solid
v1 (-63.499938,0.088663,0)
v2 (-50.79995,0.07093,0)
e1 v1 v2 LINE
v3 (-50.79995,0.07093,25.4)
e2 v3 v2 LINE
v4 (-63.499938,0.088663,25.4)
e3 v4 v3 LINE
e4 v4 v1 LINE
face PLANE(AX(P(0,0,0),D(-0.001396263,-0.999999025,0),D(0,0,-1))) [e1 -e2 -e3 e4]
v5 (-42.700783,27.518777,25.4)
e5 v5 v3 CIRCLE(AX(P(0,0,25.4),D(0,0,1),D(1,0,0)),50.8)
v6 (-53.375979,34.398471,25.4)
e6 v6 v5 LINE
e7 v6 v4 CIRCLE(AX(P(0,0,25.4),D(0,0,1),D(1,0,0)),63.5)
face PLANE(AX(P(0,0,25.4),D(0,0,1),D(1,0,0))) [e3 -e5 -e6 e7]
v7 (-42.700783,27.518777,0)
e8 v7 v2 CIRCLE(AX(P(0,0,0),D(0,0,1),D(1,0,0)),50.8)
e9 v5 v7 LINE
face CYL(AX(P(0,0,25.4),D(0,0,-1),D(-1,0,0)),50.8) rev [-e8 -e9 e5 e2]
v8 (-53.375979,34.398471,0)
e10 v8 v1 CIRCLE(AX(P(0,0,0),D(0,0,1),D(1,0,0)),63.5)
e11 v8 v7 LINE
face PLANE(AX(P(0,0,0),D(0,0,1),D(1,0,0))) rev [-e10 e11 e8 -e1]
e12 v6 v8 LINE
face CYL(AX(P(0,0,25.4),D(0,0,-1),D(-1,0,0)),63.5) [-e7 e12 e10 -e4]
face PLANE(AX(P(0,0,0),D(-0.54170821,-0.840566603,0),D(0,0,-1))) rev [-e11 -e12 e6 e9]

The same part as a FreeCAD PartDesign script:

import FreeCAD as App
import Part
import Sketcher
from FreeCAD import Vector
Q = App.Units.Quantity

doc = App.newDocument("Part")
body = doc.addObject("PartDesign::Body", "Body")

# Sketch on XY plane
sketch1 = body.newObject("Sketcher::SketchObject", "Sketch")
sketch1.AttachmentSupport = (doc.getObject("XY_Plane"), [""])
sketch1.MapMode = "FlatFace"
sketch1.addGeometry([
    Part.Circle(Vector(0, 0, 0), Vector(0, 0, 1), 63.5),
    Part.Circle(Vector(0, 0, 0), Vector(0, 0, 1), 50.8),
], False)
sketch1.addConstraint([
    Sketcher.Constraint("Coincident", 0, 3, -1, 1),
    Sketcher.Constraint("Coincident", 1, 3, -1, 1),
    Sketcher.Constraint("Diameter", 0, Q("5 in")),
    Sketcher.Constraint("Diameter", 1, Q("4 in")),
])
pad1 = body.newObject("PartDesign::Pad", "Pad")
pad1.Profile = sketch1
pad1.Length = Q("1 in")

# Sketch on XZ plane
sketch2 = body.newObject("Sketcher::SketchObject", "Sketch001")
sketch2.AttachmentSupport = (doc.getObject("XZ_Plane"), [""])
sketch2.MapMode = "FlatFace"
sketch2.addGeometry([
    Part.LineSegment(Vector(-86.190105, -4.616125, 0), Vector(-86.190105, 30.016125, 0)),
    Part.LineSegment(Vector(-86.190105, 30.016125, 0), Vector(-40.809895, 30.016125, 0)),
    Part.LineSegment(Vector(-40.809895, 30.016125, 0), Vector(-40.809895, -4.616125, 0)),
    Part.LineSegment(Vector(-40.809895, -4.616125, 0), Vector(-86.190105, -4.616125, 0)),
], False)
sketch2.addConstraint([
    Sketcher.Constraint("Coincident", 0, 2, 1, 1),
    Sketcher.Constraint("Coincident", 1, 2, 2, 1),
    Sketcher.Constraint("Coincident", 2, 2, 3, 1),
    Sketcher.Constraint("Coincident", 3, 2, 0, 1),
    Sketcher.Constraint("Vertical", 0),
    Sketcher.Constraint("Horizontal", 1),
    Sketcher.Constraint("Vertical", 2),
    Sketcher.Constraint("Horizontal", 3),
    Sketcher.Constraint("DistanceX", 1, 1, 1, 2, Q("45.380209 mm")),
    Sketcher.Constraint("DistanceY", 0, 1, 0, 2, Q("34.632251 mm")),
    Sketcher.Constraint("DistanceX", 0, 2, -1, 1, Q("86.190105 mm")),
    Sketcher.Constraint("DistanceY", -1, 1, 0, 2, Q("30.016125 mm")),
])
groove = body.newObject("PartDesign::Groove", "Groove")
groove.Profile = sketch2
groove.ReferenceAxis = (sketch2, ["V_Axis"])
groove.Angle = 0.08
groove.Reversed = True

# Sketch on XZ plane
sketch3 = body.newObject("Sketcher::SketchObject", "Sketch002")
sketch3.AttachmentSupport = (doc.getObject("XZ_Plane"), [""])
sketch3.MapMode = "FlatFace"
sketch3.addGeometry([
    Part.LineSegment(Vector(-86.190105, -4.616125, 0), Vector(-86.190105, 30.016125, 0)),
    Part.LineSegment(Vector(-86.190105, 30.016125, 0), Vector(-40.809895, 30.016125, 0)),
    Part.LineSegment(Vector(-40.809895, 30.016125, 0), Vector(-40.809895, -4.616125, 0)),
    Part.LineSegment(Vector(-40.809895, -4.616125, 0), Vector(-86.190105, -4.616125, 0)),
], False)
sketch3.addConstraint([
    Sketcher.Constraint("Coincident", 0, 2, 1, 1),
    Sketcher.Constraint("Coincident", 1, 2, 2, 1),
    Sketcher.Constraint("Coincident", 2, 2, 3, 1),
    Sketcher.Constraint("Coincident", 3, 2, 0, 1),
    Sketcher.Constraint("Vertical", 0),
    Sketcher.Constraint("Horizontal", 1),
    Sketcher.Constraint("Vertical", 2),
    Sketcher.Constraint("Horizontal", 3),
    Sketcher.Constraint("DistanceX", 1, 1, 1, 2, Q("45.380209 mm")),
    Sketcher.Constraint("DistanceY", 0, 1, 0, 2, Q("34.632251 mm")),
    Sketcher.Constraint("DistanceX", 0, 2, -1, 1, Q("86.190105 mm")),
    Sketcher.Constraint("DistanceY", -1, 1, 0, 2, Q("30.016125 mm")),
])
groove2 = body.newObject("PartDesign::Groove", "Groove001")
groove2.Profile = sketch3
groove2.ReferenceAxis = (sketch3, ["V_Axis"])
groove2.Angle = 327.2

doc.recompute()
